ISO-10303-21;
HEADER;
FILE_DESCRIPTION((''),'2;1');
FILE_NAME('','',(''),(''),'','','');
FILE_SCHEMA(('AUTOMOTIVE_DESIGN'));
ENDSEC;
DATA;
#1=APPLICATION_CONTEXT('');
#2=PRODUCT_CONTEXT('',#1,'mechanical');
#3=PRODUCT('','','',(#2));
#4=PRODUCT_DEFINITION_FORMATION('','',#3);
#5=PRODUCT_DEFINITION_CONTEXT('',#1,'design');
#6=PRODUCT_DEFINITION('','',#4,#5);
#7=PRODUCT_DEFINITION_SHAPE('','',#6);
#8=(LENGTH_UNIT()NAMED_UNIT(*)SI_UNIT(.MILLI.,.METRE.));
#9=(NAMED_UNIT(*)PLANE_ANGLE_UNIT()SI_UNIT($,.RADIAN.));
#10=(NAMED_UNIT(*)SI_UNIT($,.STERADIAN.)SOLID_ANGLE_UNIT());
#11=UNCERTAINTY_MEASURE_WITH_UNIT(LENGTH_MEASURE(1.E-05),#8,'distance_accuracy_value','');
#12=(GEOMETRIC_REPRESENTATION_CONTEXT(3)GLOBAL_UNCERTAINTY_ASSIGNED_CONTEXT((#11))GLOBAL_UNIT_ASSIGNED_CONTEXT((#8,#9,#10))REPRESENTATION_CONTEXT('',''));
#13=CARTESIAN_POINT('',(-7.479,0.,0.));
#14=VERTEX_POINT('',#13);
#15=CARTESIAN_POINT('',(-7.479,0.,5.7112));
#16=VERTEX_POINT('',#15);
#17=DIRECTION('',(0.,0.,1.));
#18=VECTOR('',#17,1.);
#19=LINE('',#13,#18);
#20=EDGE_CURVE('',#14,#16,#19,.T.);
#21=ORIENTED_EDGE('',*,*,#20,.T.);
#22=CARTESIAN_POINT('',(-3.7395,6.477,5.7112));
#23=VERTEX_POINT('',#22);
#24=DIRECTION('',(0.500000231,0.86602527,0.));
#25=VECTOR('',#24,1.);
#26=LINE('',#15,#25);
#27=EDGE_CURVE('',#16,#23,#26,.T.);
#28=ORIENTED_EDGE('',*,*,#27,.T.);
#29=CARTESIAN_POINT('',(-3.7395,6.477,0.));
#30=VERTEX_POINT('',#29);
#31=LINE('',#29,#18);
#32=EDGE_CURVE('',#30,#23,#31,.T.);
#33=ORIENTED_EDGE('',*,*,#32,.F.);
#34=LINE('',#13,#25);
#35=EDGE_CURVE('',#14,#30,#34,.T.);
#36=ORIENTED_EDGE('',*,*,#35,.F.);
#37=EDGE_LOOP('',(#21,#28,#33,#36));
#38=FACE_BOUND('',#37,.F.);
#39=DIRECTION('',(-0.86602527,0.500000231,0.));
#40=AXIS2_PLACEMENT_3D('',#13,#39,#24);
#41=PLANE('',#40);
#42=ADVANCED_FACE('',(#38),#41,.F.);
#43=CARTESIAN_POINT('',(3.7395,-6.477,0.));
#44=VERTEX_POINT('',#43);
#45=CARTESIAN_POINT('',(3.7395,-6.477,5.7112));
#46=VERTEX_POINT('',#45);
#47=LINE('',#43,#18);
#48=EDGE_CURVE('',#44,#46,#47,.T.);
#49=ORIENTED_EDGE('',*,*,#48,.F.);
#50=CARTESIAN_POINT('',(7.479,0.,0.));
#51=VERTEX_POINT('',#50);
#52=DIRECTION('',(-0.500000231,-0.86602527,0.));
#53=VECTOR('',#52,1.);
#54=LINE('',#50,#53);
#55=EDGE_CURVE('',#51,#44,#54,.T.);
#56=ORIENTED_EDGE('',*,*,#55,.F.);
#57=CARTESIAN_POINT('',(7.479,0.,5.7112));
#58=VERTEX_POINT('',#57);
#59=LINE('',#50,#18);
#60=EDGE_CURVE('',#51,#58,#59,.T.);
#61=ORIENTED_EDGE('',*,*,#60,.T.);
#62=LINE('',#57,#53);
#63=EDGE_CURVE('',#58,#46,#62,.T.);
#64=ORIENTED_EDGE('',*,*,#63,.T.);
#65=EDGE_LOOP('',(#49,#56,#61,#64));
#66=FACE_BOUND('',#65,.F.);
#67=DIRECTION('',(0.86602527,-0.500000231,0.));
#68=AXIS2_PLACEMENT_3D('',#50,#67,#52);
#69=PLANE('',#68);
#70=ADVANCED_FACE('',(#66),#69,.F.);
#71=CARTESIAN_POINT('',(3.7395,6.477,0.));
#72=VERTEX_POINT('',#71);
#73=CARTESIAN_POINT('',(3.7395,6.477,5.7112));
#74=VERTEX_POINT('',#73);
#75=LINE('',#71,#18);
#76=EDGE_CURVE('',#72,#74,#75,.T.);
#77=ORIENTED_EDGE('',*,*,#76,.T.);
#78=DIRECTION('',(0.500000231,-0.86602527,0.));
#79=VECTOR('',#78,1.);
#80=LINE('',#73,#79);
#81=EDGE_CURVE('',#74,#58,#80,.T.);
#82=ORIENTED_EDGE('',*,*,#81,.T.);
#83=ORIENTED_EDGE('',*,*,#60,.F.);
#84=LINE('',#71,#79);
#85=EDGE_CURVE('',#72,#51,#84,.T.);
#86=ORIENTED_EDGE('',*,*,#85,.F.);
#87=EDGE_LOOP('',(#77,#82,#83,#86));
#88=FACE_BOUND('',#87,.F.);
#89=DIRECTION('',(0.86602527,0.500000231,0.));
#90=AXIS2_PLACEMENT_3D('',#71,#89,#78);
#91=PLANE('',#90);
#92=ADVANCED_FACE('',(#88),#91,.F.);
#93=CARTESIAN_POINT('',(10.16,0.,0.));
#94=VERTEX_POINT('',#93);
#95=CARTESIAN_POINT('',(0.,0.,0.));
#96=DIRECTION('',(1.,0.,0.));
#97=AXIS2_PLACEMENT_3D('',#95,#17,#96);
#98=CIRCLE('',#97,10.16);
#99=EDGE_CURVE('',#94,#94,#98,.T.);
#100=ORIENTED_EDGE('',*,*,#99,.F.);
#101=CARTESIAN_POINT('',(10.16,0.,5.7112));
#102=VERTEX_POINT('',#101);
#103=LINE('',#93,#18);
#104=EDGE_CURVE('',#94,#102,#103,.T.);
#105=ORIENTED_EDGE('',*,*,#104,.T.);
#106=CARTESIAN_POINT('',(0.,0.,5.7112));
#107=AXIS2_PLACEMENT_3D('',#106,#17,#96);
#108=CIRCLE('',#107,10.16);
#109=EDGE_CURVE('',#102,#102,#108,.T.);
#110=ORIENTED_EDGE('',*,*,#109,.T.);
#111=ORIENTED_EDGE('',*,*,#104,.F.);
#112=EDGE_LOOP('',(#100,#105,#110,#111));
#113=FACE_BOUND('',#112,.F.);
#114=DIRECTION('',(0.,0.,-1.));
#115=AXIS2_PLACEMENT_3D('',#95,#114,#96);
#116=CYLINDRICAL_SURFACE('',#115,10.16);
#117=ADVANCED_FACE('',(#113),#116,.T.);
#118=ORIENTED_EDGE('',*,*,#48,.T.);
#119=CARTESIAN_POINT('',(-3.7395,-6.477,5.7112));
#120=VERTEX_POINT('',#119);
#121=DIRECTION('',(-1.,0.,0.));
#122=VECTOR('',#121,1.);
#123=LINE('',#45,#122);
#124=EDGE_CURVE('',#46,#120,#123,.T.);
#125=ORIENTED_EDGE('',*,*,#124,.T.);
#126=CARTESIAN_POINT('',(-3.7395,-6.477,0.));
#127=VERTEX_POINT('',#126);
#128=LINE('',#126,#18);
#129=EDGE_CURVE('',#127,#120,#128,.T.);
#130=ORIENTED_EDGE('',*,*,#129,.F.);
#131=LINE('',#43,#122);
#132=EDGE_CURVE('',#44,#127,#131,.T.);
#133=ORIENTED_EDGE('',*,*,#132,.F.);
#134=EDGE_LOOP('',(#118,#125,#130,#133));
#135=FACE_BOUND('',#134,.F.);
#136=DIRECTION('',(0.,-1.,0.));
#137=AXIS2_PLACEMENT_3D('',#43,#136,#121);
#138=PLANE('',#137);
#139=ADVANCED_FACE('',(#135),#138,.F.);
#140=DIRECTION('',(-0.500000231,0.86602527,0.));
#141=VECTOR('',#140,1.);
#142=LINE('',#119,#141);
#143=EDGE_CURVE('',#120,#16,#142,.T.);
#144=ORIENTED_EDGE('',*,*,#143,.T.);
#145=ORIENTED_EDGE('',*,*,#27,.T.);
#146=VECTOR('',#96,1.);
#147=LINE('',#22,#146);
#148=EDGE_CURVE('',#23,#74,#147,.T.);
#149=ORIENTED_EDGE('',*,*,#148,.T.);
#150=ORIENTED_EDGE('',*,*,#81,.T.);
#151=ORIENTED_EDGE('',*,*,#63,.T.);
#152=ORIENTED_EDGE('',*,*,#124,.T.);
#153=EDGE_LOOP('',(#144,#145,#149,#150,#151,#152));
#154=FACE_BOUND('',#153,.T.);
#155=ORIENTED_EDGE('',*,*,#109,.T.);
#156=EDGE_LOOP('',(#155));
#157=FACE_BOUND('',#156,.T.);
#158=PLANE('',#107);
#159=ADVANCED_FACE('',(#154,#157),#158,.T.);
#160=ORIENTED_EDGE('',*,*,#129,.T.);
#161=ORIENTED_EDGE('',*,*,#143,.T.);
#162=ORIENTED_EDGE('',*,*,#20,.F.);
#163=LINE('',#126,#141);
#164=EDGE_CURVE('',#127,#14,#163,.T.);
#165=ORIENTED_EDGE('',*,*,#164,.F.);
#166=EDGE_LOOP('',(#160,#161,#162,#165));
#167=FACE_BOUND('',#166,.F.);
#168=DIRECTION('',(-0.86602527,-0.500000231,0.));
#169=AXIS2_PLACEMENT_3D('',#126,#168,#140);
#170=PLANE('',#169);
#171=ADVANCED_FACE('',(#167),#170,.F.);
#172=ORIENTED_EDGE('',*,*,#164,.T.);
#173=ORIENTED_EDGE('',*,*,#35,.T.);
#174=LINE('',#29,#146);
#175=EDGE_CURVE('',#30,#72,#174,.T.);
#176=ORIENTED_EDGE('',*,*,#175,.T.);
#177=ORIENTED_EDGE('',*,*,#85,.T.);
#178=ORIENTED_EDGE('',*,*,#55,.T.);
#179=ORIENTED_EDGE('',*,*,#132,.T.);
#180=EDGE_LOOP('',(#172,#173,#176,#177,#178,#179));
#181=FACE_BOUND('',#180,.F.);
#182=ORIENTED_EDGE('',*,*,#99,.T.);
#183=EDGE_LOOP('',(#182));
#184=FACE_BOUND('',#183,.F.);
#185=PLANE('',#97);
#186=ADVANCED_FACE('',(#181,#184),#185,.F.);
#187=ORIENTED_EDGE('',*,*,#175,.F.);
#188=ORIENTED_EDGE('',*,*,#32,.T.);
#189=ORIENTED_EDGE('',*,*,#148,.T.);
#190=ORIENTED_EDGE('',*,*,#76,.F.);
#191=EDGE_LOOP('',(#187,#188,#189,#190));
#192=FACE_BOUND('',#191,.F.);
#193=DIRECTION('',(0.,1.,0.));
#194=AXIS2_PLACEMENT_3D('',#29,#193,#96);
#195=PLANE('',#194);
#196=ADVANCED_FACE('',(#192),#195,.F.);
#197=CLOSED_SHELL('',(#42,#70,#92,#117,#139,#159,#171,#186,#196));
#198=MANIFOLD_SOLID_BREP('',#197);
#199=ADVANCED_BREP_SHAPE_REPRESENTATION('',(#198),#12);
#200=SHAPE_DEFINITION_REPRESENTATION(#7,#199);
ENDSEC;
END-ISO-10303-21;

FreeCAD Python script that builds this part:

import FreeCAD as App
import Part
import Sketcher
Q = App.Units.Quantity


def add_polygon(sketch, points):
    """Adds a closed chain of lines whose ends are joined by coincident constraints."""
    first, n = sketch.GeometryCount, len(points)
    for a, b in zip(points, points[1:] + points[:1]):
        sketch.addGeometry(Part.LineSegment(App.Vector(*a, 0), App.Vector(*b, 0)), False)
    for i in range(n):
        sketch.addConstraint(Sketcher.Constraint("Coincident", first + i, 2, first + (i + 1) % n, 1))

doc = App.newDocument("Part")
params = doc.addObject("Spreadsheet::Sheet", "Params")
for row, (alias, value) in enumerate([
    ("sketch1_diameter", "0.8 in"),
    ("pad1_length", "5.7112 mm"),
], start=1):
    params.set(f"A{row}", alias)
    params.set(f"B{row}", "=" + value)
    params.setAlias(f"B{row}", alias)

body = doc.addObject("PartDesign::Body", "Body")

sketch1 = body.newObject("Sketcher::SketchObject", "Sketch")
sketch1.AttachmentSupport = (doc.getObject("XY_Plane"), [""])
sketch1.MapMode = "FlatFace"
sketch1.addGeometry(Part.Circle(App.Vector(0, 0, 0), App.Vector(0, 0, 1), 10), False)
add_polygon(sketch1, [(7, 0), (4, -6), (-4, -6), (-7, 0), (-4, 6), (4, 6)])
sketch1.addConstraint([
    Sketcher.Constraint("Horizontal", 2),
    Sketcher.Constraint("Horizontal", 5),
    Sketcher.Constraint("Coincident", 0, 3, -1, 1),
    Sketcher.Constraint("Symmetric", 1, 2, 4, 2, -1, 1),
    Sketcher.Constraint("Symmetric", 3, 2, 6, 2, -1, 1),
    Sketcher.Constraint("PointOnObject", 3, 2, -1),
    Sketcher.Constraint("Parallel", 3, 6),
    Sketcher.Constraint("Vertical", 2, 2, 4, 2),
    Sketcher.Constraint("Diameter", 0, Q("0.8 in")),
    Sketcher.Constraint("DistanceY", 2, 2, 4, 2, Q("0.51 in")),
    Sketcher.Constraint("Angle", 1, Q("-120 deg")),
    Sketcher.Constraint("DistanceX", 2, 2, 2, 1, 7.479),
])
sketch1.setExpression("Constraints[14]", "Params.sketch1_diameter")
pad1 = body.newObject("PartDesign::Pad", "Pad")
pad1.Profile = sketch1
pad1.setExpression("Length", "Params.pad1_length")

doc.recompute()
